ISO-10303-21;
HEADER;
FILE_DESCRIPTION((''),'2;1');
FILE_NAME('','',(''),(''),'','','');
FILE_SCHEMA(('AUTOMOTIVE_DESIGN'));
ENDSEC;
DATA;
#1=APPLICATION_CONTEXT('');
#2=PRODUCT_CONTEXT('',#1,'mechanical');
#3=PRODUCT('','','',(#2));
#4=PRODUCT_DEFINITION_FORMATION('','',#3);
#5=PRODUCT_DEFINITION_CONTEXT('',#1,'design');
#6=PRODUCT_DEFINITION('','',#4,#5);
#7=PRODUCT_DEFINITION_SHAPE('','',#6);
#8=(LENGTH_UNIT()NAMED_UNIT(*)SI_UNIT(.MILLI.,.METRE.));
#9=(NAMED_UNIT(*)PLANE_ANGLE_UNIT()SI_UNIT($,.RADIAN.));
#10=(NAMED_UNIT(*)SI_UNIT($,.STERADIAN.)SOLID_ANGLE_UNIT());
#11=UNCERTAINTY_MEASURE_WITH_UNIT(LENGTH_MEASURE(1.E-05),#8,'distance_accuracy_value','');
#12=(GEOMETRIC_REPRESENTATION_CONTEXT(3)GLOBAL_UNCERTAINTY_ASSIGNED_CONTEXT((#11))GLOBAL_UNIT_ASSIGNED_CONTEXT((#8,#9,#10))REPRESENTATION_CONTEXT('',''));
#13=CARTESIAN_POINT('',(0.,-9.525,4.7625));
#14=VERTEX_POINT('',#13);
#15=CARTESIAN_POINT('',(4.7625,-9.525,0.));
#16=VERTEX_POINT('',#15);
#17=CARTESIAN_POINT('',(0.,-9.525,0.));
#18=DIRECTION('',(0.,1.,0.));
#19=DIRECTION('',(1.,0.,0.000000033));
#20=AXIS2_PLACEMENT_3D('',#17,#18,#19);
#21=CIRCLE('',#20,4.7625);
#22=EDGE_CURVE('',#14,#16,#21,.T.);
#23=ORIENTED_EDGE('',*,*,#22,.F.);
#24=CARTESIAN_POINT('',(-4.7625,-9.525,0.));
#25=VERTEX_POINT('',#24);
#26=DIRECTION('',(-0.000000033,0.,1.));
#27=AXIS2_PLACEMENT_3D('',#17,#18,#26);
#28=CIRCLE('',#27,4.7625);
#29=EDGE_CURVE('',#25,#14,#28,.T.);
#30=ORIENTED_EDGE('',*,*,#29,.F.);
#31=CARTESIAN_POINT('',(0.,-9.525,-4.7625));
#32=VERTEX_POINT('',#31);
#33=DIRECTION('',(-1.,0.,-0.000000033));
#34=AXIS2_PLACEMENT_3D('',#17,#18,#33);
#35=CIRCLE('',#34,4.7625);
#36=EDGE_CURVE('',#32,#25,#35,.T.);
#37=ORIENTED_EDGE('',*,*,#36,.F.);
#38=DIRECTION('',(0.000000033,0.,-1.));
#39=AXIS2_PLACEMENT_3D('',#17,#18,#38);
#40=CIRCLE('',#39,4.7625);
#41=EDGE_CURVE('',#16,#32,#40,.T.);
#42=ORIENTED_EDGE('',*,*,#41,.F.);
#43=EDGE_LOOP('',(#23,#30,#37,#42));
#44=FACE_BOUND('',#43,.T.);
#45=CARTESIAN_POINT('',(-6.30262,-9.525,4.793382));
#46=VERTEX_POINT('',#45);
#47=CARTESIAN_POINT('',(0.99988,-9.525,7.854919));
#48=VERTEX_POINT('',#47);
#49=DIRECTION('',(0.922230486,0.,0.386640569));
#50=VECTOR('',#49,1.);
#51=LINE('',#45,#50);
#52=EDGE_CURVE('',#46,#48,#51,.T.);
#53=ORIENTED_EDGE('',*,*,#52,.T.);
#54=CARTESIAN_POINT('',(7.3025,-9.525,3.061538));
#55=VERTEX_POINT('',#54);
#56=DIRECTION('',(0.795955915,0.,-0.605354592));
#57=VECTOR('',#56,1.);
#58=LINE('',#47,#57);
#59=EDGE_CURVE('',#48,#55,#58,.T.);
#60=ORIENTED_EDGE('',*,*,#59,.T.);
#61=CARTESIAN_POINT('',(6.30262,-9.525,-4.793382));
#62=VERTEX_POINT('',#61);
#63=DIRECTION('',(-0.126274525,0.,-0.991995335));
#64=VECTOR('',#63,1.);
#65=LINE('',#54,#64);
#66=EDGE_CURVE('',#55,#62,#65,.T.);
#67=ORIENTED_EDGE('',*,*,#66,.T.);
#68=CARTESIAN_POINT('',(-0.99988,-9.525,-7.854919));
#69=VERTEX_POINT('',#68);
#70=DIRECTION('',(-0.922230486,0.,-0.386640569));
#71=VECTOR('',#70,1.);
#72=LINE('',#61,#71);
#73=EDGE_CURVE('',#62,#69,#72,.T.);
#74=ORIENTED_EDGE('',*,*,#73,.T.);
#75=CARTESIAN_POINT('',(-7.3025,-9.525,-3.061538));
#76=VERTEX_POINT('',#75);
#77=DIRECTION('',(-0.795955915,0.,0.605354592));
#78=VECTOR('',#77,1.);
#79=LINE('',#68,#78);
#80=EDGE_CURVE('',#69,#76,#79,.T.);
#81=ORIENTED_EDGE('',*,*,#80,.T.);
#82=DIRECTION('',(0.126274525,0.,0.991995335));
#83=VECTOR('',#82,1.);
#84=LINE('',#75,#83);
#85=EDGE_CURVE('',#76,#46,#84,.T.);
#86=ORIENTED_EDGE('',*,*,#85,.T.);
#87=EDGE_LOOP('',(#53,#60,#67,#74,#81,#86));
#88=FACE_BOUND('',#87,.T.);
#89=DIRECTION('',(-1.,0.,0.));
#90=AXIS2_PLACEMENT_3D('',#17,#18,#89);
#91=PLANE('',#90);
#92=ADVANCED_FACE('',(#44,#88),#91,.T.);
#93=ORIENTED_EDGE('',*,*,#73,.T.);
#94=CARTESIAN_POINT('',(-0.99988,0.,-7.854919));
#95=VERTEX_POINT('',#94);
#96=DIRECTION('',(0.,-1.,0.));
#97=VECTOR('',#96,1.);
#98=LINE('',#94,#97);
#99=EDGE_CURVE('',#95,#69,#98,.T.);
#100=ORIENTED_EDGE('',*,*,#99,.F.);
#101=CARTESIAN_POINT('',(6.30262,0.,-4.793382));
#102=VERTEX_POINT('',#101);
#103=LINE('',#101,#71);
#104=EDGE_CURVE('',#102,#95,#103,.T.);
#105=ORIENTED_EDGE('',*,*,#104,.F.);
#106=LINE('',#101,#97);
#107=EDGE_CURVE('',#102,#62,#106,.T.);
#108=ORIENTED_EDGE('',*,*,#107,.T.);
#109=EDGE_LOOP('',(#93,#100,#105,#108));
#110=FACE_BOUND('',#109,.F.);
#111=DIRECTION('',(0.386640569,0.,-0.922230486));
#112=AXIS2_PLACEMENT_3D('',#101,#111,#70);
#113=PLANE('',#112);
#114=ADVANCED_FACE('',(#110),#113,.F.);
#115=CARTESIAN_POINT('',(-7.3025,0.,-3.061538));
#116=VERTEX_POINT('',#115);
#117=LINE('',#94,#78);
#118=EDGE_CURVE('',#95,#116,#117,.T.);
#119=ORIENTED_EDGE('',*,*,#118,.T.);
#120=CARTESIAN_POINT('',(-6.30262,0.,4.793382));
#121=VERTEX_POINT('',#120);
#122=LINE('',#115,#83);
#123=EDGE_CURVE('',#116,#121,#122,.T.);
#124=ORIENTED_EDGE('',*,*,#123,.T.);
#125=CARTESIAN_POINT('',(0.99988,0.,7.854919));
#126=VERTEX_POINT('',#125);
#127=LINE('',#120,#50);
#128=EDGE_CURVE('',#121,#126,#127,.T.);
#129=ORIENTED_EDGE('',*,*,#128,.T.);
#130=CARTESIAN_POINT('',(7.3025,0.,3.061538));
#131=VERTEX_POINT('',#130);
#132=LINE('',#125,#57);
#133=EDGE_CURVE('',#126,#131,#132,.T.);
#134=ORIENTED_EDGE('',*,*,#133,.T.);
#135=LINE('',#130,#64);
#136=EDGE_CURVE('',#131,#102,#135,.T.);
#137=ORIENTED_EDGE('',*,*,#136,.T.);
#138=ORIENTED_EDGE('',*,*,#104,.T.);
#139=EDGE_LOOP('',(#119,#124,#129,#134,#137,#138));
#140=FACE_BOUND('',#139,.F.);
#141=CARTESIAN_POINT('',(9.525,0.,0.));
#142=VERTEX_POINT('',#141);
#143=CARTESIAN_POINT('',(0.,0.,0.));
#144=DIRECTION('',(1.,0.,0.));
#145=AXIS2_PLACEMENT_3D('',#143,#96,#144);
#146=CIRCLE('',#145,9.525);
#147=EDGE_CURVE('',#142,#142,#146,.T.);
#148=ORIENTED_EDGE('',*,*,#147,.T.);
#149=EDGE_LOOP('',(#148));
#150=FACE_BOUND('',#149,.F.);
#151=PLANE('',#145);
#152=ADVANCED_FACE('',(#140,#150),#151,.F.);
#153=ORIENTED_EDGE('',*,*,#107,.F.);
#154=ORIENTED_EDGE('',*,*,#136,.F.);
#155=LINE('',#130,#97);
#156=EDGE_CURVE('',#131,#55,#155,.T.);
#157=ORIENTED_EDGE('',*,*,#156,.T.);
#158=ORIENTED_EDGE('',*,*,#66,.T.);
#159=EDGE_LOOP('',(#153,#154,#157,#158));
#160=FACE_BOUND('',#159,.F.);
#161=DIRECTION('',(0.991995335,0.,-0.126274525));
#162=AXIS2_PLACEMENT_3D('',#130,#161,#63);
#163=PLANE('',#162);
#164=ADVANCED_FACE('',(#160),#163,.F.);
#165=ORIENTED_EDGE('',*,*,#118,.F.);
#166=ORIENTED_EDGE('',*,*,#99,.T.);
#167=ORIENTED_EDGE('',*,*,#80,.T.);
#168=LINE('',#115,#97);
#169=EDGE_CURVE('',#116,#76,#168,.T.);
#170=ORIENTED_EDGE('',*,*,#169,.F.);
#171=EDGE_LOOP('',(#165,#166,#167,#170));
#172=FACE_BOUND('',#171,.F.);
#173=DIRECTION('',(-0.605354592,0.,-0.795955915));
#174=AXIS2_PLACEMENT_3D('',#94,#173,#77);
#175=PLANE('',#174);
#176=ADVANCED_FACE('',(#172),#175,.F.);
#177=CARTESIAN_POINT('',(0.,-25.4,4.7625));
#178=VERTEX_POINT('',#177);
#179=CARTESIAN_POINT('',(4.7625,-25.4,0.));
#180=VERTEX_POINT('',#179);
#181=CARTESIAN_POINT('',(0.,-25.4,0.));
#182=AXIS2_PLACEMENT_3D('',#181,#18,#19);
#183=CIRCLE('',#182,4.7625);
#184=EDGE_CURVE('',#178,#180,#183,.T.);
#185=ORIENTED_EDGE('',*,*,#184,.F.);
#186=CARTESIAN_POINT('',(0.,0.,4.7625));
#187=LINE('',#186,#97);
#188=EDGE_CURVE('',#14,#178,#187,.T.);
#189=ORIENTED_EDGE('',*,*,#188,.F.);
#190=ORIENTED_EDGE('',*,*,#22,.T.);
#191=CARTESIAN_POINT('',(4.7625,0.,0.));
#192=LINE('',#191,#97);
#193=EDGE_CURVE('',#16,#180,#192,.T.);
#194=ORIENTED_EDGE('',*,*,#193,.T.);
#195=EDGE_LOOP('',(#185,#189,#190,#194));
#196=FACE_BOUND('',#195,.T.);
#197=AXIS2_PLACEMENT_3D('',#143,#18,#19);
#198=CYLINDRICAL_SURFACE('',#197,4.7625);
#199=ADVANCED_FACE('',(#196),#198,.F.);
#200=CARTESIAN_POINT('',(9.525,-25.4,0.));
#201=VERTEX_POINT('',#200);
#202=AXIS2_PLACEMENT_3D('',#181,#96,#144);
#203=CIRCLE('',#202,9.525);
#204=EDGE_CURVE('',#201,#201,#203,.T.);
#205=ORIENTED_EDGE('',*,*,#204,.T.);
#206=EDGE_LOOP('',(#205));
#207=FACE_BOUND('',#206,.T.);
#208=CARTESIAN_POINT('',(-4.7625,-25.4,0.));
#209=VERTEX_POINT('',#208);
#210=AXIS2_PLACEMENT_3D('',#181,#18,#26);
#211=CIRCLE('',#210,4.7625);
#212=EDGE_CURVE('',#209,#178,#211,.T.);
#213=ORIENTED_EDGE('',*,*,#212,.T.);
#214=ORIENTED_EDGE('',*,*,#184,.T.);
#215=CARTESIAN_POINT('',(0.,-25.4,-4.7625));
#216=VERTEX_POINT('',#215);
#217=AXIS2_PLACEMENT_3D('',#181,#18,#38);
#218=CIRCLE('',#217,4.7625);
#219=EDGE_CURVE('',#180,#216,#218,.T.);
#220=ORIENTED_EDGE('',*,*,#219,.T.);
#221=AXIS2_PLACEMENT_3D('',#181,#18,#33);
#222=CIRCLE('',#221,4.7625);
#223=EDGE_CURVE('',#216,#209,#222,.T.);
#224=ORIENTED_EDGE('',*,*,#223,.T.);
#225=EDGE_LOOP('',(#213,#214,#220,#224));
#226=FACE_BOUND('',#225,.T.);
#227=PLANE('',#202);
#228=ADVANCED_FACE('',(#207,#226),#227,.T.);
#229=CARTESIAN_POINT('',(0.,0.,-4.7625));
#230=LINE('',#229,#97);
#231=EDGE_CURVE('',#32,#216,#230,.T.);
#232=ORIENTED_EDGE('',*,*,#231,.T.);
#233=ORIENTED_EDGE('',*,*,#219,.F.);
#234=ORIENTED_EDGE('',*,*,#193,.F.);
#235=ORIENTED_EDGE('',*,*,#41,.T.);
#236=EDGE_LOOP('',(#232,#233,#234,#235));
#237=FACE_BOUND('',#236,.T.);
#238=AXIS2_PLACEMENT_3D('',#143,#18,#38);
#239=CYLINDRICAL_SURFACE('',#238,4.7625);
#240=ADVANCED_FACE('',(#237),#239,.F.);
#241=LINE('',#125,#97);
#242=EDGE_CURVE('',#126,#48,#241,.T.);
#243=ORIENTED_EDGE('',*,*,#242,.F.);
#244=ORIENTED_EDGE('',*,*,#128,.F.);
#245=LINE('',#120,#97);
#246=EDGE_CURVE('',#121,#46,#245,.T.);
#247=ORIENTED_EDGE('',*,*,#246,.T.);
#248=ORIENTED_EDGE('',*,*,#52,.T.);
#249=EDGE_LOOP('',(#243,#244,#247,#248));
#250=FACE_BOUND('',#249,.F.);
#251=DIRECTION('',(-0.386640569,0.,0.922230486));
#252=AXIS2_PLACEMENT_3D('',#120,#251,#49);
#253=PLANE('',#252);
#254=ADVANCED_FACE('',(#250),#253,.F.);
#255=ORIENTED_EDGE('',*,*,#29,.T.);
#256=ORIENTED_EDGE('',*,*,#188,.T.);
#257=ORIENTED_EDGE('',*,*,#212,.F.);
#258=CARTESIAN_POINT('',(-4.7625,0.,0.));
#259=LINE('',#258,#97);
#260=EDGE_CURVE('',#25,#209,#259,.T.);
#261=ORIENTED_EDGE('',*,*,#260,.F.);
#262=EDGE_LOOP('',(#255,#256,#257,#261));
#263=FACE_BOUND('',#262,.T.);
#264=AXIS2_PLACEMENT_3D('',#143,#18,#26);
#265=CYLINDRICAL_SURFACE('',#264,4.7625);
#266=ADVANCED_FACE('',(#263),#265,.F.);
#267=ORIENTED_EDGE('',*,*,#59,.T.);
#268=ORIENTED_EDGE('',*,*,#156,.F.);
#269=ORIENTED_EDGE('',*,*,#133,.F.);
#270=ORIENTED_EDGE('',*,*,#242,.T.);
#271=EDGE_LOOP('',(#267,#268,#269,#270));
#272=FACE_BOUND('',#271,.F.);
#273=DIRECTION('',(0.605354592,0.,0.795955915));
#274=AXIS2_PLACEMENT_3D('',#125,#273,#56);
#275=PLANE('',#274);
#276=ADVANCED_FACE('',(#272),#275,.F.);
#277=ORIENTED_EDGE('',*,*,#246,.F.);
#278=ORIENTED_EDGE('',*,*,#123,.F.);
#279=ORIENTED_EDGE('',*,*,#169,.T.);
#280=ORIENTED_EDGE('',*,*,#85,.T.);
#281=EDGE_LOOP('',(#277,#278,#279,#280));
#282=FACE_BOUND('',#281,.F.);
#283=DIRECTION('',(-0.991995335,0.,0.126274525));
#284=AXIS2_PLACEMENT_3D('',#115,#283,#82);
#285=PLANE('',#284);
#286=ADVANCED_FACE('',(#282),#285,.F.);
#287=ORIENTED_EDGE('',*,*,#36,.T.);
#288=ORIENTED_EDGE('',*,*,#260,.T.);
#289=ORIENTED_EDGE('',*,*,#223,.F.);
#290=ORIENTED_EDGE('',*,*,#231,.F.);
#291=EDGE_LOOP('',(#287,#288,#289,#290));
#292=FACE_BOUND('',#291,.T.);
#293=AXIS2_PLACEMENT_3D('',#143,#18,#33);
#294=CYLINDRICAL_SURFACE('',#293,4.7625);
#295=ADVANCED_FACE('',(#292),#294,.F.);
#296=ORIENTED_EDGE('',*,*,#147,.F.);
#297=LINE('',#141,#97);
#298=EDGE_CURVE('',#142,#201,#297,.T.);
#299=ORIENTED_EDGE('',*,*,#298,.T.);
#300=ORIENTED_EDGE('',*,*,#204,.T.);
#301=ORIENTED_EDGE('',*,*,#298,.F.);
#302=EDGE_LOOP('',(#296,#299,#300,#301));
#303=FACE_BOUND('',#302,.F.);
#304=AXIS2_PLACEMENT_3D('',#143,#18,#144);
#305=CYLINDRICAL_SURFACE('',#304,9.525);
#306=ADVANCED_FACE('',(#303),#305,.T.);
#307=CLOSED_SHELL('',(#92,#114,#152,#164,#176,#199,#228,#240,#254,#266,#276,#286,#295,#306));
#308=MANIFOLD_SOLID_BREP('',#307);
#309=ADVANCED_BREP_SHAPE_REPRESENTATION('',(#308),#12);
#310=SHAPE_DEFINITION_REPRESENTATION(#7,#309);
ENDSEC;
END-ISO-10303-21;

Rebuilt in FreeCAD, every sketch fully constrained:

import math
import FreeCAD as App
import Part
import Sketcher
from FreeCAD import Vector
Q = App.Units.Quantity

doc = App.newDocument("Part")
body = doc.addObject("PartDesign::Body", "Body")

sketch1 = doc.addObject("Sketcher::SketchObject", "Sketch")
body.addObject(sketch1)
sketch1.AttachmentSupport = (doc.XZ_Plane, [""])
sketch1.MapMode = "FlatFace"
sketch1.addGeometry(Part.Circle(Vector(0, 0, 0), Vector(0, 0, 1), 10), False)
sketch1.addConstraint(Sketcher.Constraint("Coincident", 0, 3, -1, 1))
sketch1.addConstraint(Sketcher.Constraint("Diameter", 0, Q("0.75 in")))
pad1 = doc.addObject("PartDesign::Pad", "Pad")
body.addObject(pad1)
pad1.Profile = sketch1
pad1.Length = Q("1 in")

sketch2 = doc.addObject("Sketcher::SketchObject", "Sketch001")
body.addObject(sketch2)
sketch2.AttachmentSupport = (doc.XZ_Plane, [""])
sketch2.MapMode = "FlatFace"
sketch2.addGeometry(Part.ArcOfCircle(Part.Circle(Vector(0, 0, 0), Vector(0, 0, 1), 4.8), math.radians(-180), math.radians(-90)), False)
sketch2.addGeometry(Part.ArcOfCircle(Part.Circle(Vector(0, 0, 0), Vector(0, 0, 1), 4.8), math.radians(-90), math.radians(0)), False)
sketch2.addGeometry(Part.ArcOfCircle(Part.Circle(Vector(0, 0, 0), Vector(0, 0, 1), 4.8), math.radians(0), math.radians(90)), False)
sketch2.addGeometry(Part.ArcOfCircle(Part.Circle(Vector(0, 0, 0), Vector(0, 0, 1), 4.8), math.radians(90), math.radians(180)), False)
sketch2.addConstraint(Sketcher.Constraint("Tangent", 0, 2, 1, 1))
sketch2.addConstraint(Sketcher.Constraint("Tangent", 1, 2, 2, 1))
sketch2.addConstraint(Sketcher.Constraint("Tangent", 2, 2, 3, 1))
sketch2.addConstraint(Sketcher.Constraint("Tangent", 3, 2, 0, 1))
sketch2.addConstraint(Sketcher.Constraint("Coincident", 0, 3, -1, 1))
sketch2.addConstraint(Sketcher.Constraint("Equal", 0, 1))
sketch2.addConstraint(Sketcher.Constraint("PointOnObject", 0, 2, -2))
sketch2.addConstraint(Sketcher.Constraint("PointOnObject", 1, 2, -1))
sketch2.addConstraint(Sketcher.Constraint("PointOnObject", 2, 2, -2))
sketch2.addConstraint(Sketcher.Constraint("PointOnObject", 3, 2, -1))
sketch2.addConstraint(Sketcher.Constraint("Radius", 0, Q("0.1875 in")))
pocket1 = doc.addObject("PartDesign::Pocket", "Pocket")
body.addObject(pocket1)
pocket1.Profile = sketch2
pocket1.Type = "ThroughAll"
pocket1.Reversed = True

sketch3 = doc.addObject("Sketcher::SketchObject", "Sketch002")
body.addObject(sketch3)
sketch3.AttachmentSupport = (doc.XZ_Plane, [""])
sketch3.MapMode = "FlatFace"
sketch3.addGeometry(Part.LineSegment(Vector(0, -4.8, 0), Vector(4.8, -4.8, 0)), False)
sketch3.addGeometry(Part.LineSegment(Vector(4.8, -4.8, 0), Vector(4.8, 0, 0)), False)
sketch3.addGeometry(Part.ArcOfCircle(Part.Circle(Vector(0, 0, 0), Vector(0, 0, 1), 4.8), math.radians(-90), math.radians(0)), False)
sketch3.addGeometry(Part.LineSegment(Vector(-4.8, -4.8, 0), Vector(0, -4.8, 0)), False)
sketch3.addGeometry(Part.ArcOfCircle(Part.Circle(Vector(0, 0, 0), Vector(0, 0, 1), 4.8), math.radians(-180), math.radians(-90)), False)
sketch3.addGeometry(Part.LineSegment(Vector(-4.8, 0, 0), Vector(-4.8, -4.8, 0)), False)
sketch3.addGeometry(Part.ArcOfCircle(Part.Circle(Vector(0, 0, 0), Vector(0, 0, 1), 4.8), math.radians(0), math.radians(90)), False)
sketch3.addGeometry(Part.LineSegment(Vector(4.8, 0, 0), Vector(4.8, 4.8, 0)), False)
sketch3.addGeometry(Part.LineSegment(Vector(4.8, 4.8, 0), Vector(0, 4.8, 0)), False)
sketch3.addGeometry(Part.LineSegment(Vector(-4.8, 4.8, 0), Vector(-4.8, 0, 0)), False)
sketch3.addGeometry(Part.ArcOfCircle(Part.Circle(Vector(0, 0, 0), Vector(0, 0, 1), 4.8), math.radians(90), math.radians(180)), False)
sketch3.addGeometry(Part.LineSegment(Vector(0, 4.8, 0), Vector(-4.8, 4.8, 0)), False)
sketch3.addConstraint(Sketcher.Constraint("Coincident", 0, 2, 1, 1))
sketch3.addConstraint(Sketcher.Constraint("Tangent", 1, 2, 2, 2))
sketch3.addConstraint(Sketcher.Constraint("Tangent", 2, 1, 0, 1))
sketch3.addConstraint(Sketcher.Constraint("Tangent", 3, 2, 4, 2))
sketch3.addConstraint(Sketcher.Constraint("Tangent", 4, 1, 5, 1))
sketch3.addConstraint(Sketcher.Constraint("Coincident", 5, 2, 3, 1))
sketch3.addConstraint(Sketcher.Constraint("Tangent", 6, 1, 7, 1))
sketch3.addConstraint(Sketcher.Constraint("Coincident", 7, 2, 8, 1))
sketch3.addConstraint(Sketcher.Constraint("Tangent", 8, 2, 6, 2))
sketch3.addConstraint(Sketcher.Constraint("Tangent", 9, 2, 10, 2))
sketch3.addConstraint(Sketcher.Constraint("Tangent", 10, 1, 11, 1))
sketch3.addConstraint(Sketcher.Constraint("Coincident", 11, 2, 9, 1))
sketch3.addConstraint(Sketcher.Constraint("Horizontal", 0))
sketch3.addConstraint(Sketcher.Constraint("Vertical", 1))
sketch3.addConstraint(Sketcher.Constraint("Horizontal", 3))
sketch3.addConstraint(Sketcher.Constraint("Vertical", 5))
sketch3.addConstraint(Sketcher.Constraint("Vertical", 7))
sketch3.addConstraint(Sketcher.Constraint("Horizontal", 8))
sketch3.addConstraint(Sketcher.Constraint("Vertical", 9))
sketch3.addConstraint(Sketcher.Constraint("Horizontal", 11))
sketch3.addConstraint(Sketcher.Constraint("Coincident", 2, 3, -1, 1))
sketch3.addConstraint(Sketcher.Constraint("Coincident", 4, 3, -1, 1))
sketch3.addConstraint(Sketcher.Constraint("Coincident", 6, 3, -1, 1))
sketch3.addConstraint(Sketcher.Constraint("Coincident", 10, 3, -1, 1))
sketch3.addConstraint(Sketcher.Constraint("Equal", 2, 4))
sketch3.addConstraint(Sketcher.Constraint("Equal", 4, 6))
sketch3.addConstraint(Sketcher.Constraint("Equal", 6, 10))
sketch3.addConstraint(Sketcher.Constraint("Radius", 2, Q("0.1875 in")))
pocket2 = doc.addObject("PartDesign::Pocket", "Pocket001")
body.addObject(pocket2)
pocket2.Profile = sketch3
pocket2.Length = Q("0.437 in")

sketch4 = doc.addObject("Sketcher::SketchObject", "Sketch003")
body.addObject(sketch4)
sketch4.AttachmentSupport = (doc.XZ_Plane, [""])
sketch4.MapMode = "FlatFace"
sketch4.addGeometry(Part.LineSegment(Vector(-1, -8, 0), Vector(-7, -3, 0)), False)
sketch4.addGeometry(Part.LineSegment(Vector(-7, -3, 0), Vector(-6, 5, 0)), False)
sketch4.addGeometry(Part.LineSegment(Vector(-6, 5, 0), Vector(1, 8, 0)), False)
sketch4.addGeometry(Part.LineSegment(Vector(1, 8, 0), Vector(7, 3, 0)), False)
sketch4.addGeometry(Part.LineSegment(Vector(7, 3, 0), Vector(6, -5, 0)), False)
sketch4.addGeometry(Part.LineSegment(Vector(6, -5, 0), Vector(-1, -8, 0)), False)
sketch4.addConstraint(Sketcher.Constraint("Coincident", 0, 2, 1, 1))
sketch4.addConstraint(Sketcher.Constraint("Coincident", 1, 2, 2, 1))
sketch4.addConstraint(Sketcher.Constraint("Coincident", 2, 2, 3, 1))
sketch4.addConstraint(Sketcher.Constraint("Coincident", 3, 2, 4, 1))
sketch4.addConstraint(Sketcher.Constraint("Coincident", 4, 2, 5, 1))
sketch4.addConstraint(Sketcher.Constraint("Coincident", 5, 2, 0, 1))
sketch4.addConstraint(Sketcher.Constraint("Symmetric", 0, 2, 3, 2, -1, 1))
sketch4.addConstraint(Sketcher.Constraint("Symmetric", 1, 2, 4, 2, -1, 1))
sketch4.addConstraint(Sketcher.Constraint("Symmetric", 2, 2, 5, 2, -1, 1))
sketch4.addConstraint(Sketcher.Constraint("Equal", 0, 1))
sketch4.addConstraint(Sketcher.Constraint("Equal", 1, 2))
sketch4.addConstraint(Sketcher.Constraint("DistanceX", 0, 2, 3, 2, Q("0.575 in")))
sketch4.addConstraint(Sketcher.Constraint("DistanceX", 1, 2, 2, 2, Q("0.2875 in")))
sketch4.addConstraint(Sketcher.Constraint("DistanceY", 4, 2, 2, 2, 12.648301))
sketch4.addConstraint(Sketcher.Constraint("DistanceY", 0, 2, -1, 1, 3.061538))
pocket3 = doc.addObject("PartDesign::Pocket", "Pocket002")
body.addObject(pocket3)
pocket3.Profile = sketch4
pocket3.Length = Q("0.375 in")
pocket3.Reversed = True

doc.recompute()
